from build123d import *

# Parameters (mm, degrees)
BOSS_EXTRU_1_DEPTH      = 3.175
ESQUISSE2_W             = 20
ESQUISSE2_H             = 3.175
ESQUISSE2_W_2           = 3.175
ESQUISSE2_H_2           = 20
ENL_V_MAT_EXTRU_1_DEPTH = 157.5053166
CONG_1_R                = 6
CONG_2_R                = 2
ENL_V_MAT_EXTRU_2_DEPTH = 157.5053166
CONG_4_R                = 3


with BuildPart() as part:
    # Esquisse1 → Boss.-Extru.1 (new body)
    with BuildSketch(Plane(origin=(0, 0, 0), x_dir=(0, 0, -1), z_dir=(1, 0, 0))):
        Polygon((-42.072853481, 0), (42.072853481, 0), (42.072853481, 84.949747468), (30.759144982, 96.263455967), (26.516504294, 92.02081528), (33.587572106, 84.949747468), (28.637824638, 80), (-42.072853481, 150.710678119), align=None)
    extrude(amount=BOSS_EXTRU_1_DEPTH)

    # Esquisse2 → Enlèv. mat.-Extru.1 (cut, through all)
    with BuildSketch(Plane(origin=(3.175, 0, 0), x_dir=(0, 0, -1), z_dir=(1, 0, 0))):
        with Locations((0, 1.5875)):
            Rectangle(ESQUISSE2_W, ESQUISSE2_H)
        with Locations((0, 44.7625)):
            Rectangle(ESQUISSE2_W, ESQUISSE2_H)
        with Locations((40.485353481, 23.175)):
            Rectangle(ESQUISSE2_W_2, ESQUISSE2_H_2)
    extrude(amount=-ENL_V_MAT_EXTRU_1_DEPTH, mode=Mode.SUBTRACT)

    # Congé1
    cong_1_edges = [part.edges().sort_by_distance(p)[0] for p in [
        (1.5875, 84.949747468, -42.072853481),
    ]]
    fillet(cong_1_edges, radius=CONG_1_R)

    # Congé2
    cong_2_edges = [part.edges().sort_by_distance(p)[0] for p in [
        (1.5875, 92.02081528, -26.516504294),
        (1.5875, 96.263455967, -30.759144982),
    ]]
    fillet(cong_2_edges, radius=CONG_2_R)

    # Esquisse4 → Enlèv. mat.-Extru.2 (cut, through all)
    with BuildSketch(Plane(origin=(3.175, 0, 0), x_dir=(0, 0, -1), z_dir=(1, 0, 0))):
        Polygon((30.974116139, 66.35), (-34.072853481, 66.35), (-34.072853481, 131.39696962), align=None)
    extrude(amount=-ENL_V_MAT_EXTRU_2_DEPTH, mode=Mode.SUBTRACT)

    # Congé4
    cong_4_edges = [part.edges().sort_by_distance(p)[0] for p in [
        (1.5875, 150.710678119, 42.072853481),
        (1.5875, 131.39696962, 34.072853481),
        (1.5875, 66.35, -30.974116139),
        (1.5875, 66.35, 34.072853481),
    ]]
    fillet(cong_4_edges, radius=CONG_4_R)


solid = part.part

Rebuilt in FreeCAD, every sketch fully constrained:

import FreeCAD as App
import Part
import Sketcher
Q = App.Units.Quantity


def edges_at(feature, points):
    """Names of the edges that pass closest to the given points."""
    edges = feature.Shape.Edges
    near = lambda p: min(range(len(edges)), key=lambda i: edges[i].distToShape(Part.Vertex(*p))[0])
    return sorted({f"Edge{near(p) + 1}" for p in points})

doc = App.newDocument("Part")
body = doc.addObject("PartDesign::Body", "Body")

sketch1 = body.newObject("Sketcher::SketchObject", "Sketch")
sketch1.AttachmentSupport = (doc.getObject("YZ_Plane"), [""])
sketch1.MapMode = "FlatFace"
sketch1.addGeometry([
    Part.LineSegment(App.Vector(0, 42.072853, 0), App.Vector(0, -42.072853, 0)),
    Part.LineSegment(App.Vector(0, -42.072853, 0), App.Vector(84.949747, -42.072853, 0)),
    Part.LineSegment(App.Vector(84.949747, -42.072853, 0), App.Vector(96.263456, -30.759145, 0)),
    Part.LineSegment(App.Vector(96.263456, -30.759145, 0), App.Vector(92.020815, -26.516504, 0)),
    Part.LineSegment(App.Vector(92.020815, -26.516504, 0), App.Vector(84.949747, -33.587572, 0)),
    Part.LineSegment(App.Vector(84.949747, -33.587572, 0), App.Vector(80, -28.637825, 0)),
    Part.LineSegment(App.Vector(80, -28.637825, 0), App.Vector(150.710678, 42.072853, 0)),
    Part.LineSegment(App.Vector(150.710678, 42.072853, 0), App.Vector(0, 42.072853, 0)),
], False)
sketch1.addConstraint([
    Sketcher.Constraint("Coincident", 0, 2, 1, 1),
    Sketcher.Constraint("Coincident", 1, 2, 2, 1),
    Sketcher.Constraint("Coincident", 2, 2, 3, 1),
    Sketcher.Constraint("Coincident", 3, 2, 4, 1),
    Sketcher.Constraint("Coincident", 4, 2, 5, 1),
    Sketcher.Constraint("Coincident", 5, 2, 6, 1),
    Sketcher.Constraint("Coincident", 6, 2, 7, 1),
    Sketcher.Constraint("Coincident", 7, 2, 0, 1),
    Sketcher.Constraint("Vertical", 0),
    Sketcher.Constraint("Horizontal", 1),
    Sketcher.Constraint("Horizontal", 7),
    Sketcher.Constraint("Symmetric", 0, 2, 7, 2, -1, 1),
    Sketcher.Constraint("Perpendicular", 2, 3),
    Sketcher.Constraint("Perpendicular", 3, 4),
    Sketcher.Constraint("Perpendicular", 4, 5),
    Sketcher.Constraint("Perpendicular", 5, 6),
    Sketcher.Constraint("Vertical", 1, 2, 4, 2),
    Sketcher.Constraint("Angle", 2, Q("45 deg")),
    Sketcher.Constraint("Distance", 2, 16.0),
    Sketcher.Constraint("Distance", 3, 6.0),
    Sketcher.Constraint("Distance", 5, 7.0),
    Sketcher.Constraint("Distance", 6, 100.0),
    Sketcher.Constraint("DistanceX", -1, 1, 5, 2, 80.0),
])
pad1 = body.newObject("PartDesign::Pad", "Pad")
pad1.Profile = sketch1
pad1.Length = 3.175

sketch2 = body.newObject("Sketcher::SketchObject", "Sketch001")
sketch2.AttachmentSupport = (doc.getObject("YZ_Plane"), [""])
sketch2.MapMode = "FlatFace"
sketch2.AttachmentOffset = App.Placement(App.Vector(0, 0, 3.175), App.Rotation())
sketch2.addGeometry([
    Part.LineSegment(App.Vector(3.175, 10, 0), App.Vector(0, 10, 0)),
    Part.LineSegment(App.Vector(0, 10, 0), App.Vector(0, -10, 0)),
    Part.LineSegment(App.Vector(0, -10, 0), App.Vector(3.175, -10, 0)),
    Part.LineSegment(App.Vector(3.175, -10, 0), App.Vector(3.175, 10, 0)),
    Part.LineSegment(App.Vector(46.35, 10, 0), App.Vector(43.175, 10, 0)),
    Part.LineSegment(App.Vector(43.175, 10, 0), App.Vector(43.175, -10, 0)),
    Part.LineSegment(App.Vector(43.175, -10, 0), App.Vector(46.35, -10, 0)),
    Part.LineSegment(App.Vector(46.35, -10, 0), App.Vector(46.35, 10, 0)),
    Part.LineSegment(App.Vector(33.175, -38.897853, 0), App.Vector(13.175, -38.897853, 0)),
    Part.LineSegment(App.Vector(13.175, -38.897853, 0), App.Vector(13.175, -42.072853, 0)),
    Part.LineSegment(App.Vector(13.175, -42.072853, 0), App.Vector(33.175, -42.072853, 0)),
    Part.LineSegment(App.Vector(33.175, -42.072853, 0), App.Vector(33.175, -38.897853, 0)),
], False)
sketch2.addConstraint([
    Sketcher.Constraint("Coincident", 0, 2, 1, 1),
    Sketcher.Constraint("Coincident", 1, 2, 2, 1),
    Sketcher.Constraint("Coincident", 2, 2, 3, 1),
    Sketcher.Constraint("Coincident", 3, 2, 0, 1),
    Sketcher.Constraint("Coincident", 4, 2, 5, 1),
    Sketcher.Constraint("Coincident", 5, 2, 6, 1),
    Sketcher.Constraint("Coincident", 6, 2, 7, 1),
    Sketcher.Constraint("Coincident", 7, 2, 4, 1),
    Sketcher.Constraint("Coincident", 8, 2, 9, 1),
    Sketcher.Constraint("Coincident", 9, 2, 10, 1),
    Sketcher.Constraint("Coincident", 10, 2, 11, 1),
    Sketcher.Constraint("Coincident", 11, 2, 8, 1),
    Sketcher.Constraint("Horizontal", 0),
    Sketcher.Constraint("Vertical", 1),
    Sketcher.Constraint("Horizontal", 2),
    Sketcher.Constraint("Vertical", 3),
    Sketcher.Constraint("Horizontal", 4),
    Sketcher.Constraint("Vertical", 5),
    Sketcher.Constraint("Horizontal", 6),
    Sketcher.Constraint("Vertical", 7),
    Sketcher.Constraint("Horizontal", 8),
    Sketcher.Constraint("Vertical", 9),
    Sketcher.Constraint("Horizontal", 10),
    Sketcher.Constraint("Vertical", 11),
    Sketcher.Constraint("Symmetric", 0, 2, 1, 2, -1, 1),
    Sketcher.Constraint("Horizontal", 3, 2, 4, 2),
    Sketcher.Constraint("Horizontal", 2, 2, 5, 2),
    Sketcher.Constraint("Equal", 2, 4),
    Sketcher.Constraint("Equal", 10, 1),
    Sketcher.Constraint("Equal", 6, 9),
    Sketcher.Constraint("DistanceX", 8, 2, 8, 1, 20.0),
    Sketcher.Constraint("DistanceX", 3, 2, 4, 2, 40.0),
    Sketcher.Constraint("DistanceX", 2, 2, 8, 2, 10.0),
    Sketcher.Constraint("DistanceX", 0, 2, 0, 1, 3.175),
    Sketcher.Constraint("DistanceY", 8, 2, -1, 1, 38.897853),
])
pocket1 = body.newObject("PartDesign::Pocket", "Pocket")
pocket1.Profile = sketch2
pocket1.Type = "ThroughAll"
doc.recompute()

fillet = body.newObject("PartDesign::Fillet", "Fillet")
fillet.Base = (pocket1, edges_at(pocket1, [(1.587, 84.95, -42.073)]))
fillet.Radius = 6
doc.recompute()

fillet2 = body.newObject("PartDesign::Fillet", "Fillet001")
fillet2.Base = (fillet, edges_at(fillet, [(1.587, 92.021, -26.517), (1.587, 96.263, -30.759)]))
fillet2.Radius = 2

sketch3 = body.newObject("Sketcher::SketchObject", "Sketch002")
sketch3.AttachmentSupport = (doc.getObject("YZ_Plane"), [""])
sketch3.MapMode = "FlatFace"
sketch3.AttachmentOffset = App.Placement(App.Vector(0, 0, 3.175), App.Rotation())
sketch3.addGeometry([
    Part.LineSegment(App.Vector(66.35, 34.072853, 0), App.Vector(66.35, -30.974116, 0)),
    Part.LineSegment(App.Vector(66.35, -30.974116, 0), App.Vector(131.39697, 34.072853, 0)),
    Part.LineSegment(App.Vector(131.39697, 34.072853, 0), App.Vector(66.35, 34.072853, 0)),
], False)
sketch3.addConstraint([
    Sketcher.Constraint("Coincident", 0, 2, 1, 1),
    Sketcher.Constraint("Coincident", 1, 2, 2, 1),
    Sketcher.Constraint("Coincident", 2, 2, 0, 1),
    Sketcher.Constraint("Vertical", 0),
    Sketcher.Constraint("Horizontal", 2),
    Sketcher.Constraint("Equal", 2, 0),
    Sketcher.Constraint("DistanceX", -1, 1, 0, 2, 66.35),
    Sketcher.Constraint("DistanceX", 2, 2, 2, 1, 65.04697),
    Sketcher.Constraint("DistanceY", 0, 2, -1, 1, 30.974116),
])
pocket2 = body.newObject("PartDesign::Pocket", "Pocket001")
pocket2.Profile = sketch3
pocket2.Type = "ThroughAll"
doc.recompute()

fillet3 = body.newObject("PartDesign::Fillet", "Fillet002")
fillet3.Base = (pocket2, edges_at(pocket2, [
    (1.587, 150.711, 42.073),
    (1.587, 131.397, 34.073),
    (1.587, 66.35, -30.974),
    (1.587, 66.35, 34.073),
]))
fillet3.Radius = 3

doc.recompute()
